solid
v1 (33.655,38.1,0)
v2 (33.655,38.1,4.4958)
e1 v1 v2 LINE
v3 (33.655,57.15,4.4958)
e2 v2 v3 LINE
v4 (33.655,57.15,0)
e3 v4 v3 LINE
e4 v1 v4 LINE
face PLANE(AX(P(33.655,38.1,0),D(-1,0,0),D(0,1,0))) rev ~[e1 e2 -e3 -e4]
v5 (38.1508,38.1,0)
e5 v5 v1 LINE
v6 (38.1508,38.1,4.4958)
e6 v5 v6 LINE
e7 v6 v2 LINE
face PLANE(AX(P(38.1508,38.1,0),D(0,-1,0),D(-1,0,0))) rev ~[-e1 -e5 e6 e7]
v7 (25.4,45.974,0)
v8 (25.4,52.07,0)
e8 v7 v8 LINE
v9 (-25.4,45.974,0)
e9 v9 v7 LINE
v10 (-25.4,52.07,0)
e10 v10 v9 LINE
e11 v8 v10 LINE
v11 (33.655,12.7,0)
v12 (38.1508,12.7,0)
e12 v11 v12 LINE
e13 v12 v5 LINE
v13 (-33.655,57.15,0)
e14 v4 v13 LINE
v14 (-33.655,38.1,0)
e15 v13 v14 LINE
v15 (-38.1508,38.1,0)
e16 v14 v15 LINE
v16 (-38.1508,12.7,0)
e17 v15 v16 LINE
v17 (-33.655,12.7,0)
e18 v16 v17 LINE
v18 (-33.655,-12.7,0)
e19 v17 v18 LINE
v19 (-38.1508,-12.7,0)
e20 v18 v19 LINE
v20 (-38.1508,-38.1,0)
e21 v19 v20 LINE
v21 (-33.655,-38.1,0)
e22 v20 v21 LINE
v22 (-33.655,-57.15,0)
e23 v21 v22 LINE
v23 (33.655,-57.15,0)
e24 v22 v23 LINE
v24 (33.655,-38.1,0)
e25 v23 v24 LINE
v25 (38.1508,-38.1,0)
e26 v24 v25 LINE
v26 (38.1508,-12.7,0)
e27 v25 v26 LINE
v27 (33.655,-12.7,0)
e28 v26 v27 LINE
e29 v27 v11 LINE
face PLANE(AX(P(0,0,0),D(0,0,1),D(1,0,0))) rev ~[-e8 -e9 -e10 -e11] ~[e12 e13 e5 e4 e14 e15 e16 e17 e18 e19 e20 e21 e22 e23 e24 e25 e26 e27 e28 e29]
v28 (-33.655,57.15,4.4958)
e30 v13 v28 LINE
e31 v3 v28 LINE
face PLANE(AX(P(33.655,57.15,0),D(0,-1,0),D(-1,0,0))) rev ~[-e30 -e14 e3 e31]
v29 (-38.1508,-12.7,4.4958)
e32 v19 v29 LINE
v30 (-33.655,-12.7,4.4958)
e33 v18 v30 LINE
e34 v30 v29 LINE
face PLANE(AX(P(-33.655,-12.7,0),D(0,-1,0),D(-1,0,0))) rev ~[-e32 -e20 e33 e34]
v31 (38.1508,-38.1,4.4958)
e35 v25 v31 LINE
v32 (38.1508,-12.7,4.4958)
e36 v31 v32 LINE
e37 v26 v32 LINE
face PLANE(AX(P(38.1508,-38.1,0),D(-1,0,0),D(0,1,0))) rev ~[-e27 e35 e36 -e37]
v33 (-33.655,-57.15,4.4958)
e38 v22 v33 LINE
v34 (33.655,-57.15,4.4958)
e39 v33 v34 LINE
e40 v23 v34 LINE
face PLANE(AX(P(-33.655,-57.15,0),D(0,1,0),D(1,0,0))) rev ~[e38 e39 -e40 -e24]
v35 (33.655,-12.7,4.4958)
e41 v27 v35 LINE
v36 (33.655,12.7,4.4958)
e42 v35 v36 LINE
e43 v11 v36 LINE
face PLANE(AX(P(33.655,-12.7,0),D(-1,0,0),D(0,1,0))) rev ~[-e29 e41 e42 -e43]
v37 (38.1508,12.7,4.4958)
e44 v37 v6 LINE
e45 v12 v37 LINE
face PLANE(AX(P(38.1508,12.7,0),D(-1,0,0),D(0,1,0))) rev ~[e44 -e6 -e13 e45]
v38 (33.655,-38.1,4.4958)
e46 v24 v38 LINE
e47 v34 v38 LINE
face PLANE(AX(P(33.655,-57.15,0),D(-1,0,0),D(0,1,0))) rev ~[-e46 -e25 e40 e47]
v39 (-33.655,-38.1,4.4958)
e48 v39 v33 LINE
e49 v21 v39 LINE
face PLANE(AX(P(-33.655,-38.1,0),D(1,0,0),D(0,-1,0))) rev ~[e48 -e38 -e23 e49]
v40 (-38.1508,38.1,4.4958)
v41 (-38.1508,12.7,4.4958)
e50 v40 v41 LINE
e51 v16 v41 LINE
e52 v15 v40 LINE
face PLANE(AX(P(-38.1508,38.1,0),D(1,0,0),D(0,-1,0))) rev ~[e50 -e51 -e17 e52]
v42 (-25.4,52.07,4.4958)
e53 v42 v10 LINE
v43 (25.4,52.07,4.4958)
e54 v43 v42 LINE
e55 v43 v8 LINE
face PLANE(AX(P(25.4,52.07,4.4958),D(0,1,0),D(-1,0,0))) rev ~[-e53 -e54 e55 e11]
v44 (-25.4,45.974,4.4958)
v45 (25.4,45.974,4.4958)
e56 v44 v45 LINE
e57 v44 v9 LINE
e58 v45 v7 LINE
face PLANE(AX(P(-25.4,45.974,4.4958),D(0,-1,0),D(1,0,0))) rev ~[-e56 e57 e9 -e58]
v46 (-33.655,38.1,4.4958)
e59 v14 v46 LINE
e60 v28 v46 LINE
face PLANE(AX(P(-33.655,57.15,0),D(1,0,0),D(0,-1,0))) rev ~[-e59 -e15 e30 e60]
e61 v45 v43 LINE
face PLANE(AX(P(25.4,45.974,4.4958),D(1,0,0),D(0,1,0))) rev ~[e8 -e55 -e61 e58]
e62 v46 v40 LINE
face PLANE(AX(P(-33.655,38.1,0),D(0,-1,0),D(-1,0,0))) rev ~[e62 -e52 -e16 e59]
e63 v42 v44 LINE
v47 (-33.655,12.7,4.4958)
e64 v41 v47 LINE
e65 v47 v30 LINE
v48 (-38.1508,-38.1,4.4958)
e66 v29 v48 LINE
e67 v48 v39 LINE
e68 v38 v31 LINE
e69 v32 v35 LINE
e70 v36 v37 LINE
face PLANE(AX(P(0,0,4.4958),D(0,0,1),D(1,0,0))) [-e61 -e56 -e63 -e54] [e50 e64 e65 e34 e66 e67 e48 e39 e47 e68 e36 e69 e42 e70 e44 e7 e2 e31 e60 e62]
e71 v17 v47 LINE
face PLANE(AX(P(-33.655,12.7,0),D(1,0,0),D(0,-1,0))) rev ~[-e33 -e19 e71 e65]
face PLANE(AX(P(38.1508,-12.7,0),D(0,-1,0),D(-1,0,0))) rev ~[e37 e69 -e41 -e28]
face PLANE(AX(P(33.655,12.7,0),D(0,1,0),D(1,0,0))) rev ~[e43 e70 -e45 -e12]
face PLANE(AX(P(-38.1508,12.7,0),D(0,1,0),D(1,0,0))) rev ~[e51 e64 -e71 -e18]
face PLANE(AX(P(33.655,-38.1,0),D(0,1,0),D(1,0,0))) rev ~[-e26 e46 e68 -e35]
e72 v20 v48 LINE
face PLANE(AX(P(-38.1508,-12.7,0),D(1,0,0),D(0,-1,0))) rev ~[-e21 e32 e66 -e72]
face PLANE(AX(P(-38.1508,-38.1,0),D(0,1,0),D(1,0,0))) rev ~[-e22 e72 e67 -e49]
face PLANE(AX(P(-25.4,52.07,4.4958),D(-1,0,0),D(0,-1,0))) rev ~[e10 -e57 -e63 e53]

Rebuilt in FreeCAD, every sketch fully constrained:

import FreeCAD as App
import Part
import Sketcher

V = App.Vector
Q = App.Units.Quantity

doc = App.newDocument("Part")
body = doc.addObject("PartDesign::Body", "Body")

sketch1 = body.newObject("Sketcher::SketchObject", "Sketch")
sketch1.AttachmentSupport = (doc.getObject("XY_Plane"), [""])
sketch1.MapMode = "FlatFace"
sketch1.addGeometry(Part.LineSegment(V(33.7, 57.1, 0), V(-33.7, 57.1, 0)), False)
sketch1.addGeometry(Part.LineSegment(V(-33.7, 57.1, 0), V(-33.7, 38.1, 0)), False)
sketch1.addGeometry(Part.LineSegment(V(-33.7, 38.1, 0), V(-38.2, 38.1, 0)), False)
sketch1.addGeometry(Part.LineSegment(V(-38.2, 38.1, 0), V(-38.2, 12.7, 0)), False)
sketch1.addGeometry(Part.LineSegment(V(-38.2, 12.7, 0), V(-33.7, 12.7, 0)), False)
sketch1.addGeometry(Part.LineSegment(V(-33.7, 12.7, 0), V(-33.7, -12.7, 0)), False)
sketch1.addGeometry(Part.LineSegment(V(-33.7, -12.7, 0), V(-38.2, -12.7, 0)), False)
sketch1.addGeometry(Part.LineSegment(V(-38.2, -12.7, 0), V(-38.2, -38.1, 0)), False)
sketch1.addGeometry(Part.LineSegment(V(-38.2, -38.1, 0), V(-33.7, -38.1, 0)), False)
sketch1.addGeometry(Part.LineSegment(V(-33.7, -38.1, 0), V(-33.7, -57.1, 0)), False)
sketch1.addGeometry(Part.LineSegment(V(-33.7, -57.1, 0), V(33.7, -57.1, 0)), False)
sketch1.addGeometry(Part.LineSegment(V(33.7, -57.1, 0), V(33.7, -38.1, 0)), False)
sketch1.addGeometry(Part.LineSegment(V(33.7, -38.1, 0), V(38.2, -38.1, 0)), False)
sketch1.addGeometry(Part.LineSegment(V(38.2, -38.1, 0), V(38.2, -12.7, 0)), False)
sketch1.addGeometry(Part.LineSegment(V(38.2, -12.7, 0), V(33.7, -12.7, 0)), False)
sketch1.addGeometry(Part.LineSegment(V(33.7, -12.7, 0), V(33.7, 12.7, 0)), False)
sketch1.addGeometry(Part.LineSegment(V(33.7, 12.7, 0), V(38.2, 12.7, 0)), False)
sketch1.addGeometry(Part.LineSegment(V(38.2, 12.7, 0), V(38.2, 38.1, 0)), False)
sketch1.addGeometry(Part.LineSegment(V(38.2, 38.1, 0), V(33.7, 38.1, 0)), False)
sketch1.addGeometry(Part.LineSegment(V(33.7, 38.1, 0), V(33.7, 57.1, 0)), False)
sketch1.addConstraint(Sketcher.Constraint("Coincident", 0, 2, 1, 1))
sketch1.addConstraint(Sketcher.Constraint("Coincident", 1, 2, 2, 1))
sketch1.addConstraint(Sketcher.Constraint("Coincident", 2, 2, 3, 1))
sketch1.addConstraint(Sketcher.Constraint("Coincident", 3, 2, 4, 1))
sketch1.addConstraint(Sketcher.Constraint("Coincident", 4, 2, 5, 1))
sketch1.addConstraint(Sketcher.Constraint("Coincident", 5, 2, 6, 1))
sketch1.addConstraint(Sketcher.Constraint("Coincident", 6, 2, 7, 1))
sketch1.addConstraint(Sketcher.Constraint("Coincident", 7, 2, 8, 1))
sketch1.addConstraint(Sketcher.Constraint("Coincident", 8, 2, 9, 1))
sketch1.addConstraint(Sketcher.Constraint("Coincident", 9, 2, 10, 1))
sketch1.addConstraint(Sketcher.Constraint("Coincident", 10, 2, 11, 1))
sketch1.addConstraint(Sketcher.Constraint("Coincident", 11, 2, 12, 1))
sketch1.addConstraint(Sketcher.Constraint("Coincident", 12, 2, 13, 1))
sketch1.addConstraint(Sketcher.Constraint("Coincident", 13, 2, 14, 1))
sketch1.addConstraint(Sketcher.Constraint("Coincident", 14, 2, 15, 1))
sketch1.addConstraint(Sketcher.Constraint("Coincident", 15, 2, 16, 1))
sketch1.addConstraint(Sketcher.Constraint("Coincident", 16, 2, 17, 1))
sketch1.addConstraint(Sketcher.Constraint("Coincident", 17, 2, 18, 1))
sketch1.addConstraint(Sketcher.Constraint("Coincident", 18, 2, 19, 1))
sketch1.addConstraint(Sketcher.Constraint("Coincident", 19, 2, 0, 1))
sketch1.addConstraint(Sketcher.Constraint("Horizontal", 0))
sketch1.addConstraint(Sketcher.Constraint("Vertical", 1))
sketch1.addConstraint(Sketcher.Constraint("Horizontal", 2))
sketch1.addConstraint(Sketcher.Constraint("Vertical", 3))
sketch1.addConstraint(Sketcher.Constraint("Horizontal", 4))
sketch1.addConstraint(Sketcher.Constraint("Vertical", 5))
sketch1.addConstraint(Sketcher.Constraint("Horizontal", 6))
sketch1.addConstraint(Sketcher.Constraint("Vertical", 7))
sketch1.addConstraint(Sketcher.Constraint("Horizontal", 8))
sketch1.addConstraint(Sketcher.Constraint("Vertical", 9))
sketch1.addConstraint(Sketcher.Constraint("Horizontal", 10))
sketch1.addConstraint(Sketcher.Constraint("Vertical", 11))
sketch1.addConstraint(Sketcher.Constraint("Horizontal", 12))
sketch1.addConstraint(Sketcher.Constraint("Vertical", 13))
sketch1.addConstraint(Sketcher.Constraint("Horizontal", 14))
sketch1.addConstraint(Sketcher.Constraint("Vertical", 15))
sketch1.addConstraint(Sketcher.Constraint("Horizontal", 16))
sketch1.addConstraint(Sketcher.Constraint("Vertical", 17))
sketch1.addConstraint(Sketcher.Constraint("Horizontal", 18))
sketch1.addConstraint(Sketcher.Constraint("Vertical", 19))
sketch1.addConstraint(Sketcher.Constraint("Symmetric", 0, 2, 10, 2, -1, 1))
sketch1.addConstraint(Sketcher.Constraint("Symmetric", 2, 2, 12, 2, -1, 1))
sketch1.addConstraint(Sketcher.Constraint("Symmetric", 4, 2, 14, 2, -1, 1))
sketch1.addConstraint(Sketcher.Constraint("Symmetric", 6, 2, 16, 2, -1, 1))
sketch1.addConstraint(Sketcher.Constraint("Symmetric", 8, 2, 18, 2, -1, 1))
sketch1.addConstraint(Sketcher.Constraint("Symmetric", 8, 2, 11, 2, -2))
sketch1.addConstraint(Sketcher.Constraint("Symmetric", 6, 2, 13, 2, -2))
sketch1.addConstraint(Sketcher.Constraint("Vertical", 1, 2, 4, 2))
sketch1.addConstraint(Sketcher.Constraint("Equal", 3, 5))
sketch1.addConstraint(Sketcher.Constraint("DistanceY", 3, 2, 3, 1, Q("1 in")))
sketch1.addConstraint(Sketcher.Constraint("DistanceX", 0, 2, 0, 1, Q("2.65 in")))
sketch1.addConstraint(Sketcher.Constraint("DistanceY", 1, 2, 1, 1, Q("0.75 in")))
sketch1.addConstraint(Sketcher.Constraint("DistanceX", 2, 2, 2, 1, Q("0.177 in")))
pad1 = body.newObject("PartDesign::Pad", "Pad")
pad1.Profile = sketch1
pad1.Length = Q("0.177 in")

sketch2 = body.newObject("Sketcher::SketchObject", "Sketch001")
sketch2.AttachmentSupport = (doc.getObject("XY_Plane"), [""])
sketch2.MapMode = "FlatFace"
sketch2.AttachmentOffset = App.Placement(V(0, 0, 0.177 * 25.4), App.Rotation())
sketch2.addGeometry(Part.LineSegment(V(25, 52, 0), V(-25, 52, 0)), False)
sketch2.addGeometry(Part.LineSegment(V(-25, 52, 0), V(-25, 46, 0)), False)
sketch2.addGeometry(Part.LineSegment(V(-25, 46, 0), V(25, 46, 0)), False)
sketch2.addGeometry(Part.LineSegment(V(25, 46, 0), V(25, 52, 0)), False)
sketch2.addConstraint(Sketcher.Constraint("Coincident", 0, 2, 1, 1))
sketch2.addConstraint(Sketcher.Constraint("Coincident", 1, 2, 2, 1))
sketch2.addConstraint(Sketcher.Constraint("Coincident", 2, 2, 3, 1))
sketch2.addConstraint(Sketcher.Constraint("Coincident", 3, 2, 0, 1))
sketch2.addConstraint(Sketcher.Constraint("Horizontal", 0))
sketch2.addConstraint(Sketcher.Constraint("Vertical", 1))
sketch2.addConstraint(Sketcher.Constraint("Horizontal", 2))
sketch2.addConstraint(Sketcher.Constraint("Vertical", 3))
sketch2.addConstraint(Sketcher.Constraint("DistanceX", 0, 2, 0, 1, Q("2 in")))
sketch2.addConstraint(Sketcher.Constraint("DistanceX", 0, 2, -1, 1, Q("1 in")))
sketch2.addConstraint(Sketcher.Constraint("DistanceY", 1, 2, 1, 1, Q("0.24 in")))
sketch2.addConstraint(Sketcher.Constraint("DistanceY", -1, 1, 0, 2, Q("2.05 in")))
pocket1 = body.newObject("PartDesign::Pocket", "Pocket")
pocket1.Profile = sketch2
pocket1.Type = "ThroughAll"

doc.recompute()
